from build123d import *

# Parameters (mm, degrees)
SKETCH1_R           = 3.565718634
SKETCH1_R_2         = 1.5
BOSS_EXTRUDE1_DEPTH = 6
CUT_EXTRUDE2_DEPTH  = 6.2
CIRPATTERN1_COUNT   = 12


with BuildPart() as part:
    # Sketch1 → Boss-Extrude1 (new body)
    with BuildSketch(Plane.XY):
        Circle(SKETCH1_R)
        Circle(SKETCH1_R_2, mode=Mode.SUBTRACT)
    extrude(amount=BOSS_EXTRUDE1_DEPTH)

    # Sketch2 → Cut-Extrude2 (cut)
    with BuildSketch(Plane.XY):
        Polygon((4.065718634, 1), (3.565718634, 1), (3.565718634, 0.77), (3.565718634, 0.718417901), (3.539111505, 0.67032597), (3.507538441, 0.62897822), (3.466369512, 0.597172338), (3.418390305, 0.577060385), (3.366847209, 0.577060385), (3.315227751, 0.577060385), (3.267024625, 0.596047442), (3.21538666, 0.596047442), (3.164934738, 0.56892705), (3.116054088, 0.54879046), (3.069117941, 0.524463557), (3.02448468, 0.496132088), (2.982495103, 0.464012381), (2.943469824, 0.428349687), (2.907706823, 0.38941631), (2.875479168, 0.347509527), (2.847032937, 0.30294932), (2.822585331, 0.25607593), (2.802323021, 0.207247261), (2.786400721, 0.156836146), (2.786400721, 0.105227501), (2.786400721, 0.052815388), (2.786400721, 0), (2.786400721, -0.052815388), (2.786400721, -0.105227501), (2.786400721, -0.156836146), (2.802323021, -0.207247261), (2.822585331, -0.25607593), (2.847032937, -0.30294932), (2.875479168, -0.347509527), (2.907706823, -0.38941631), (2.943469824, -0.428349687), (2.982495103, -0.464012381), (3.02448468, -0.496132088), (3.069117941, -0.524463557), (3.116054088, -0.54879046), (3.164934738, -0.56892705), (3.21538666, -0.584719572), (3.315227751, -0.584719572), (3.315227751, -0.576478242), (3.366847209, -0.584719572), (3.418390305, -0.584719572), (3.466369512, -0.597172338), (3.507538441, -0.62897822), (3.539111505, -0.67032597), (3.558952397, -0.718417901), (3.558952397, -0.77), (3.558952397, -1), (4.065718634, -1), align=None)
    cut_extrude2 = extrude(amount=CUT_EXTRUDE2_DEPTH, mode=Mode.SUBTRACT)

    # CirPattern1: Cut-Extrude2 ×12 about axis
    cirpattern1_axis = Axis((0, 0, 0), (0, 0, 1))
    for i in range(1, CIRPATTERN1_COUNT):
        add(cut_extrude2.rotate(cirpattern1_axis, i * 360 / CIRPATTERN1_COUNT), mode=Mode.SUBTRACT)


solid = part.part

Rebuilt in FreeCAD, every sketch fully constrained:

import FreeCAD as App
import Part
import Sketcher

V = App.Vector

doc = App.newDocument("Part")
body = doc.addObject("PartDesign::Body", "Body")

sketch1 = body.newObject("Sketcher::SketchObject", "Sketch")
sketch1.AttachmentSupport = (doc.getObject("XY_Plane"), [""])
sketch1.MapMode = "FlatFace"
sketch1.addGeometry([
    Part.Circle(V(0, 0, 0), V(0, 0, 1), 3.6),
    Part.Circle(V(0, 0, 0), V(0, 0, 1), 1.5),
], False)
sketch1.addConstraint([
    Sketcher.Constraint("Coincident", 0, 3, -1, 1),
    Sketcher.Constraint("Coincident", 1, 3, -1, 1),
    Sketcher.Constraint("Diameter", 1, 3.0),
    Sketcher.Constraint("Diameter", 0, 7.131437),
])
pad1 = body.newObject("PartDesign::Pad", "Pad")
pad1.Profile = sketch1
pad1.Length = 6

sketch2 = body.newObject("Sketcher::SketchObject", "Sketch001")
sketch2.AttachmentSupport = (doc.getObject("XY_Plane"), [""])
sketch2.MapMode = "FlatFace"
sketch2.addGeometry([
    Part.LineSegment(V(4.066, 1, 0), V(3.566, 1, 0)),
    Part.LineSegment(V(3.566, 1, 0), V(3.566, 0.718, 0)),
    Part.LineSegment(V(3.566, 0.718, 0), V(3.539, 0.67, 0)),
    Part.LineSegment(V(3.539, 0.67, 0), V(3.508, 0.629, 0)),
    Part.LineSegment(V(3.508, 0.629, 0), V(3.466, 0.597, 0)),
    Part.LineSegment(V(3.466, 0.597, 0), V(3.418, 0.577, 0)),
    Part.LineSegment(V(3.418, 0.577, 0), V(3.315, 0.577, 0)),
    Part.LineSegment(V(3.315, 0.577, 0), V(3.267, 0.596, 0)),
    Part.LineSegment(V(3.267, 0.596, 0), V(3.215, 0.596, 0)),
    Part.LineSegment(V(3.215, 0.596, 0), V(3.165, 0.569, 0)),
    Part.LineSegment(V(3.165, 0.569, 0), V(3.116, 0.549, 0)),
    Part.LineSegment(V(3.116, 0.549, 0), V(3.069, 0.524, 0)),
    Part.LineSegment(V(3.069, 0.524, 0), V(3.024, 0.496, 0)),
    Part.LineSegment(V(3.024, 0.496, 0), V(2.982, 0.464, 0)),
    Part.LineSegment(V(2.982, 0.464, 0), V(2.943, 0.428, 0)),
    Part.LineSegment(V(2.943, 0.428, 0), V(2.908, 0.389, 0)),
    Part.LineSegment(V(2.908, 0.389, 0), V(2.875, 0.348, 0)),
    Part.LineSegment(V(2.875, 0.348, 0), V(2.847, 0.303, 0)),
    Part.LineSegment(V(2.847, 0.303, 0), V(2.823, 0.256, 0)),
    Part.LineSegment(V(2.823, 0.256, 0), V(2.802, 0.207, 0)),
    Part.LineSegment(V(2.802, 0.207, 0), V(2.786, 0.157, 0)),
    Part.LineSegment(V(2.786, 0.157, 0), V(2.786, -0.157, 0)),
    Part.LineSegment(V(2.786, -0.157, 0), V(2.802, -0.207, 0)),
    Part.LineSegment(V(2.802, -0.207, 0), V(2.823, -0.256, 0)),
    Part.LineSegment(V(2.823, -0.256, 0), V(2.847, -0.303, 0)),
    Part.LineSegment(V(2.847, -0.303, 0), V(2.875, -0.348, 0)),
    Part.LineSegment(V(2.875, -0.348, 0), V(2.908, -0.389, 0)),
    Part.LineSegment(V(2.908, -0.389, 0), V(2.943, -0.428, 0)),
    Part.LineSegment(V(2.943, -0.428, 0), V(2.982, -0.464, 0)),
    Part.LineSegment(V(2.982, -0.464, 0), V(3.024, -0.496, 0)),
    Part.LineSegment(V(3.024, -0.496, 0), V(3.069, -0.524, 0)),
    Part.LineSegment(V(3.069, -0.524, 0), V(3.116, -0.549, 0)),
    Part.LineSegment(V(3.116, -0.549, 0), V(3.165, -0.569, 0)),
    Part.LineSegment(V(3.165, -0.569, 0), V(3.215, -0.585, 0)),
    Part.LineSegment(V(3.215, -0.585, 0), V(3.315, -0.585, 0)),
    Part.LineSegment(V(3.315, -0.585, 0), V(3.315, -0.576, 0)),
    Part.LineSegment(V(3.315, -0.576, 0), V(3.367, -0.585, 0)),
    Part.LineSegment(V(3.367, -0.585, 0), V(3.418, -0.585, 0)),
    Part.LineSegment(V(3.418, -0.585, 0), V(3.466, -0.597, 0)),
    Part.LineSegment(V(3.466, -0.597, 0), V(3.508, -0.629, 0)),
    Part.LineSegment(V(3.508, -0.629, 0), V(3.539, -0.67, 0)),
    Part.LineSegment(V(3.539, -0.67, 0), V(3.559, -0.718, 0)),
    Part.LineSegment(V(3.559, -0.718, 0), V(3.559, -1, 0)),
    Part.LineSegment(V(3.559, -1, 0), V(4.066, -1, 0)),
    Part.LineSegment(V(4.066, -1, 0), V(4.066, 1, 0)),
], False)
sketch2.addConstraint([
    Sketcher.Constraint("Coincident", 0, 2, 1, 1),
    Sketcher.Constraint("Coincident", 1, 2, 2, 1),
    Sketcher.Constraint("Coincident", 2, 2, 3, 1),
    Sketcher.Constraint("Coincident", 3, 2, 4, 1),
    Sketcher.Constraint("Coincident", 4, 2, 5, 1),
    Sketcher.Constraint("Coincident", 5, 2, 6, 1),
    Sketcher.Constraint("Coincident", 6, 2, 7, 1),
    Sketcher.Constraint("Coincident", 7, 2, 8, 1),
    Sketcher.Constraint("Coincident", 8, 2, 9, 1),
    Sketcher.Constraint("Coincident", 9, 2, 10, 1),
    Sketcher.Constraint("Coincident", 10, 2, 11, 1),
    Sketcher.Constraint("Coincident", 11, 2, 12, 1),
    Sketcher.Constraint("Coincident", 12, 2, 13, 1),
    Sketcher.Constraint("Coincident", 13, 2, 14, 1),
    Sketcher.Constraint("Coincident", 14, 2, 15, 1),
    Sketcher.Constraint("Coincident", 15, 2, 16, 1),
    Sketcher.Constraint("Coincident", 16, 2, 17, 1),
    Sketcher.Constraint("Coincident", 17, 2, 18, 1),
    Sketcher.Constraint("Coincident", 18, 2, 19, 1),
    Sketcher.Constraint("Coincident", 19, 2, 20, 1),
    Sketcher.Constraint("Coincident", 20, 2, 21, 1),
    Sketcher.Constraint("Coincident", 21, 2, 22, 1),
    Sketcher.Constraint("Coincident", 22, 2, 23, 1),
    Sketcher.Constraint("Coincident", 23, 2, 24, 1),
    Sketcher.Constraint("Coincident", 24, 2, 25, 1),
    Sketcher.Constraint("Coincident", 25, 2, 26, 1),
    Sketcher.Constraint("Coincident", 26, 2, 27, 1),
    Sketcher.Constraint("Coincident", 27, 2, 28, 1),
    Sketcher.Constraint("Coincident", 28, 2, 29, 1),
    Sketcher.Constraint("Coincident", 29, 2, 30, 1),
    Sketcher.Constraint("Coincident", 30, 2, 31, 1),
    Sketcher.Constraint("Coincident", 31, 2, 32, 1),
    Sketcher.Constraint("Coincident", 32, 2, 33, 1),
    Sketcher.Constraint("Coincident", 33, 2, 34, 1),
    Sketcher.Constraint("Coincident", 34, 2, 35, 1),
    Sketcher.Constraint("Coincident", 35, 2, 36, 1),
    Sketcher.Constraint("Coincident", 36, 2, 37, 1),
    Sketcher.Constraint("Coincident", 37, 2, 38, 1),
    Sketcher.Constraint("Coincident", 38, 2, 39, 1),
    Sketcher.Constraint("Coincident", 39, 2, 40, 1),
    Sketcher.Constraint("Coincident", 40, 2, 41, 1),
    Sketcher.Constraint("Coincident", 41, 2, 42, 1),
    Sketcher.Constraint("Coincident", 42, 2, 43, 1),
    Sketcher.Constraint("Coincident", 43, 2, 44, 1),
    Sketcher.Constraint("Coincident", 44, 2, 0, 1),
    Sketcher.Constraint("Horizontal", 0),
    Sketcher.Constraint("Vertical", 1),
    Sketcher.Constraint("Horizontal", 6),
    Sketcher.Constraint("Horizontal", 8),
    Sketcher.Constraint("Vertical", 21),
    Sketcher.Constraint("Horizontal", 34),
    Sketcher.Constraint("Vertical", 35),
    Sketcher.Constraint("Horizontal", 37),
    Sketcher.Constraint("Vertical", 42),
    Sketcher.Constraint("Horizontal", 43),
    Sketcher.Constraint("Vertical", 44),
    Sketcher.Constraint("Symmetric", 19, 2, 22, 2, -1),
    Sketcher.Constraint("Symmetric", 18, 2, 23, 2, -1),
    Sketcher.Constraint("Symmetric", 17, 2, 24, 2, -1),
    Sketcher.Constraint("Symmetric", 16, 2, 25, 2, -1),
    Sketcher.Constraint("Symmetric", 15, 2, 26, 2, -1),
    Sketcher.Constraint("Symmetric", 14, 2, 27, 2, -1),
    Sketcher.Constraint("Symmetric", 13, 2, 28, 2, -1),
    Sketcher.Constraint("Symmetric", 12, 2, 29, 2, -1),
    Sketcher.Constraint("Symmetric", 11, 2, 30, 2, -1),
    Sketcher.Constraint("Symmetric", 10, 2, 31, 2, -1),
    Sketcher.Constraint("Symmetric", 9, 2, 32, 2, -1),
    Sketcher.Constraint("Symmetric", 4, 2, 38, 2, -1),
    Sketcher.Constraint("Symmetric", 3, 2, 39, 2, -1),
    Sketcher.Constraint("Symmetric", 2, 2, 40, 2, -1),
    Sketcher.Constraint("Horizontal", 34, 2, 36, 2),
    Sketcher.Constraint("Vertical", 8, 2, 33, 2),
    Sketcher.Constraint("Vertical", 6, 2, 34, 2),
    Sketcher.Constraint("Vertical", 5, 2, 37, 2),
    Sketcher.Constraint("Equal", 1, 42),
    Sketcher.Constraint("Equal", 3, 4),
    Sketcher.Constraint("Equal", 4, 5),
    Sketcher.Constraint("Equal", 10, 11),
    Sketcher.Constraint("Equal", 11, 12),
    Sketcher.Constraint("Equal", 12, 13),
    Sketcher.Constraint("Equal", 13, 14),
    Sketcher.Constraint("Equal", 14, 15),
    Sketcher.Constraint("Equal", 15, 16),
    Sketcher.Constraint("Equal", 16, 17),
    Sketcher.Constraint("Equal", 17, 18),
    Sketcher.Constraint("Equal", 18, 19),
    Sketcher.Constraint("Equal", 19, 20),
    Sketcher.Constraint("Equal", 20, 22),
    Sketcher.Constraint("Equal", 32, 33),
    Sketcher.Constraint("Equal", 40, 41),
    Sketcher.Constraint("DistanceY", 44, 1, 44, 2, 2.0),
    Sketcher.Constraint("DistanceX", 0, 2, 0, 1, 0.5),
    Sketcher.Constraint("DistanceY", -1, 1, 0, 2, 1.0),
    Sketcher.Constraint("DistanceX", 34, 1, 34, 2, 0.099841),
    Sketcher.Constraint("DistanceY", 35, 1, 35, 2, 0.008241),
    Sketcher.Constraint("DistanceX", -1, 1, 20, 2, 2.786401),
    Sketcher.Constraint("DistanceX", 12, 2, 8, 2, 0.190902),
    Sketcher.Constraint("DistanceY", 17, 2, 14, 2, 0.1254),
    Sketcher.Constraint("DistanceY", 39, 2, 35, 2, 0.0525),
    Sketcher.Constraint("DistanceY", 41, 2, 37, 2, 0.133698),
    Sketcher.Constraint("Distance", 2, 0.054962),
    Sketcher.Constraint("Distance", 9, 0.057279),
    Sketcher.Constraint("Distance", 38, 0.049569),
    Sketcher.Constraint("DistanceX", 6, 2, 6, 1, 0.103163),
    Sketcher.Constraint("DistanceX", 8, 2, 8, 1, 0.051638),
    Sketcher.Constraint("DistanceX", 37, 1, 37, 2, 0.051543),
    Sketcher.Constraint("DistanceX", 43, 1, 43, 2, 0.506766),
    Sketcher.Constraint("DistanceY", 1, 2, 1, 1, 0.281582),
    Sketcher.Constraint("DistanceY", 21, 2, 21, 1, 0.313672),
    Sketcher.Constraint("DistanceX", -1, 1, 0, 2, 3.565719),
    Sketcher.Constraint("DistanceX", -1, 1, 2, 2, 3.539112),
    Sketcher.Constraint("DistanceX", -1, 1, 4, 2, 3.46637),
    Sketcher.Constraint("DistanceY", -1, 1, 10, 2, 0.54879),
    Sketcher.Constraint("DistanceX", -1, 1, 14, 2, 2.94347),
    Sketcher.Constraint("DistanceY", -1, 1, 14, 2, 0.42835),
    Sketcher.Constraint("DistanceX", -1, 1, 16, 2, 2.875479),
    Sketcher.Constraint("DistanceY", -1, 1, 16, 2, 0.34751),
    Sketcher.Constraint("DistanceY", 7, 2, 3, 2, 0.032931),
    Sketcher.Constraint("DistanceX", 9, 2, 8, 2, 0.050452),
    Sketcher.Constraint("DistanceX", 11, 2, 8, 2, 0.146269),
    Sketcher.Constraint("DistanceX", 18, 2, 15, 2, 0.085121),
])
pocket1 = body.newObject("PartDesign::Pocket", "Pocket")
pocket1.Profile = sketch2
pocket1.Length = 6.2
pocket1.Reversed = True
doc.recompute()

polarpattern = body.newObject("PartDesign::PolarPattern", "PolarPattern")
polarpattern.Originals = [pocket1]
polarpattern.Axis = (doc.getObject("Z_Axis"), [""])
polarpattern.Angle = 360
polarpattern.Occurrences = 12
body.Tip = polarpattern

doc.recompute()
